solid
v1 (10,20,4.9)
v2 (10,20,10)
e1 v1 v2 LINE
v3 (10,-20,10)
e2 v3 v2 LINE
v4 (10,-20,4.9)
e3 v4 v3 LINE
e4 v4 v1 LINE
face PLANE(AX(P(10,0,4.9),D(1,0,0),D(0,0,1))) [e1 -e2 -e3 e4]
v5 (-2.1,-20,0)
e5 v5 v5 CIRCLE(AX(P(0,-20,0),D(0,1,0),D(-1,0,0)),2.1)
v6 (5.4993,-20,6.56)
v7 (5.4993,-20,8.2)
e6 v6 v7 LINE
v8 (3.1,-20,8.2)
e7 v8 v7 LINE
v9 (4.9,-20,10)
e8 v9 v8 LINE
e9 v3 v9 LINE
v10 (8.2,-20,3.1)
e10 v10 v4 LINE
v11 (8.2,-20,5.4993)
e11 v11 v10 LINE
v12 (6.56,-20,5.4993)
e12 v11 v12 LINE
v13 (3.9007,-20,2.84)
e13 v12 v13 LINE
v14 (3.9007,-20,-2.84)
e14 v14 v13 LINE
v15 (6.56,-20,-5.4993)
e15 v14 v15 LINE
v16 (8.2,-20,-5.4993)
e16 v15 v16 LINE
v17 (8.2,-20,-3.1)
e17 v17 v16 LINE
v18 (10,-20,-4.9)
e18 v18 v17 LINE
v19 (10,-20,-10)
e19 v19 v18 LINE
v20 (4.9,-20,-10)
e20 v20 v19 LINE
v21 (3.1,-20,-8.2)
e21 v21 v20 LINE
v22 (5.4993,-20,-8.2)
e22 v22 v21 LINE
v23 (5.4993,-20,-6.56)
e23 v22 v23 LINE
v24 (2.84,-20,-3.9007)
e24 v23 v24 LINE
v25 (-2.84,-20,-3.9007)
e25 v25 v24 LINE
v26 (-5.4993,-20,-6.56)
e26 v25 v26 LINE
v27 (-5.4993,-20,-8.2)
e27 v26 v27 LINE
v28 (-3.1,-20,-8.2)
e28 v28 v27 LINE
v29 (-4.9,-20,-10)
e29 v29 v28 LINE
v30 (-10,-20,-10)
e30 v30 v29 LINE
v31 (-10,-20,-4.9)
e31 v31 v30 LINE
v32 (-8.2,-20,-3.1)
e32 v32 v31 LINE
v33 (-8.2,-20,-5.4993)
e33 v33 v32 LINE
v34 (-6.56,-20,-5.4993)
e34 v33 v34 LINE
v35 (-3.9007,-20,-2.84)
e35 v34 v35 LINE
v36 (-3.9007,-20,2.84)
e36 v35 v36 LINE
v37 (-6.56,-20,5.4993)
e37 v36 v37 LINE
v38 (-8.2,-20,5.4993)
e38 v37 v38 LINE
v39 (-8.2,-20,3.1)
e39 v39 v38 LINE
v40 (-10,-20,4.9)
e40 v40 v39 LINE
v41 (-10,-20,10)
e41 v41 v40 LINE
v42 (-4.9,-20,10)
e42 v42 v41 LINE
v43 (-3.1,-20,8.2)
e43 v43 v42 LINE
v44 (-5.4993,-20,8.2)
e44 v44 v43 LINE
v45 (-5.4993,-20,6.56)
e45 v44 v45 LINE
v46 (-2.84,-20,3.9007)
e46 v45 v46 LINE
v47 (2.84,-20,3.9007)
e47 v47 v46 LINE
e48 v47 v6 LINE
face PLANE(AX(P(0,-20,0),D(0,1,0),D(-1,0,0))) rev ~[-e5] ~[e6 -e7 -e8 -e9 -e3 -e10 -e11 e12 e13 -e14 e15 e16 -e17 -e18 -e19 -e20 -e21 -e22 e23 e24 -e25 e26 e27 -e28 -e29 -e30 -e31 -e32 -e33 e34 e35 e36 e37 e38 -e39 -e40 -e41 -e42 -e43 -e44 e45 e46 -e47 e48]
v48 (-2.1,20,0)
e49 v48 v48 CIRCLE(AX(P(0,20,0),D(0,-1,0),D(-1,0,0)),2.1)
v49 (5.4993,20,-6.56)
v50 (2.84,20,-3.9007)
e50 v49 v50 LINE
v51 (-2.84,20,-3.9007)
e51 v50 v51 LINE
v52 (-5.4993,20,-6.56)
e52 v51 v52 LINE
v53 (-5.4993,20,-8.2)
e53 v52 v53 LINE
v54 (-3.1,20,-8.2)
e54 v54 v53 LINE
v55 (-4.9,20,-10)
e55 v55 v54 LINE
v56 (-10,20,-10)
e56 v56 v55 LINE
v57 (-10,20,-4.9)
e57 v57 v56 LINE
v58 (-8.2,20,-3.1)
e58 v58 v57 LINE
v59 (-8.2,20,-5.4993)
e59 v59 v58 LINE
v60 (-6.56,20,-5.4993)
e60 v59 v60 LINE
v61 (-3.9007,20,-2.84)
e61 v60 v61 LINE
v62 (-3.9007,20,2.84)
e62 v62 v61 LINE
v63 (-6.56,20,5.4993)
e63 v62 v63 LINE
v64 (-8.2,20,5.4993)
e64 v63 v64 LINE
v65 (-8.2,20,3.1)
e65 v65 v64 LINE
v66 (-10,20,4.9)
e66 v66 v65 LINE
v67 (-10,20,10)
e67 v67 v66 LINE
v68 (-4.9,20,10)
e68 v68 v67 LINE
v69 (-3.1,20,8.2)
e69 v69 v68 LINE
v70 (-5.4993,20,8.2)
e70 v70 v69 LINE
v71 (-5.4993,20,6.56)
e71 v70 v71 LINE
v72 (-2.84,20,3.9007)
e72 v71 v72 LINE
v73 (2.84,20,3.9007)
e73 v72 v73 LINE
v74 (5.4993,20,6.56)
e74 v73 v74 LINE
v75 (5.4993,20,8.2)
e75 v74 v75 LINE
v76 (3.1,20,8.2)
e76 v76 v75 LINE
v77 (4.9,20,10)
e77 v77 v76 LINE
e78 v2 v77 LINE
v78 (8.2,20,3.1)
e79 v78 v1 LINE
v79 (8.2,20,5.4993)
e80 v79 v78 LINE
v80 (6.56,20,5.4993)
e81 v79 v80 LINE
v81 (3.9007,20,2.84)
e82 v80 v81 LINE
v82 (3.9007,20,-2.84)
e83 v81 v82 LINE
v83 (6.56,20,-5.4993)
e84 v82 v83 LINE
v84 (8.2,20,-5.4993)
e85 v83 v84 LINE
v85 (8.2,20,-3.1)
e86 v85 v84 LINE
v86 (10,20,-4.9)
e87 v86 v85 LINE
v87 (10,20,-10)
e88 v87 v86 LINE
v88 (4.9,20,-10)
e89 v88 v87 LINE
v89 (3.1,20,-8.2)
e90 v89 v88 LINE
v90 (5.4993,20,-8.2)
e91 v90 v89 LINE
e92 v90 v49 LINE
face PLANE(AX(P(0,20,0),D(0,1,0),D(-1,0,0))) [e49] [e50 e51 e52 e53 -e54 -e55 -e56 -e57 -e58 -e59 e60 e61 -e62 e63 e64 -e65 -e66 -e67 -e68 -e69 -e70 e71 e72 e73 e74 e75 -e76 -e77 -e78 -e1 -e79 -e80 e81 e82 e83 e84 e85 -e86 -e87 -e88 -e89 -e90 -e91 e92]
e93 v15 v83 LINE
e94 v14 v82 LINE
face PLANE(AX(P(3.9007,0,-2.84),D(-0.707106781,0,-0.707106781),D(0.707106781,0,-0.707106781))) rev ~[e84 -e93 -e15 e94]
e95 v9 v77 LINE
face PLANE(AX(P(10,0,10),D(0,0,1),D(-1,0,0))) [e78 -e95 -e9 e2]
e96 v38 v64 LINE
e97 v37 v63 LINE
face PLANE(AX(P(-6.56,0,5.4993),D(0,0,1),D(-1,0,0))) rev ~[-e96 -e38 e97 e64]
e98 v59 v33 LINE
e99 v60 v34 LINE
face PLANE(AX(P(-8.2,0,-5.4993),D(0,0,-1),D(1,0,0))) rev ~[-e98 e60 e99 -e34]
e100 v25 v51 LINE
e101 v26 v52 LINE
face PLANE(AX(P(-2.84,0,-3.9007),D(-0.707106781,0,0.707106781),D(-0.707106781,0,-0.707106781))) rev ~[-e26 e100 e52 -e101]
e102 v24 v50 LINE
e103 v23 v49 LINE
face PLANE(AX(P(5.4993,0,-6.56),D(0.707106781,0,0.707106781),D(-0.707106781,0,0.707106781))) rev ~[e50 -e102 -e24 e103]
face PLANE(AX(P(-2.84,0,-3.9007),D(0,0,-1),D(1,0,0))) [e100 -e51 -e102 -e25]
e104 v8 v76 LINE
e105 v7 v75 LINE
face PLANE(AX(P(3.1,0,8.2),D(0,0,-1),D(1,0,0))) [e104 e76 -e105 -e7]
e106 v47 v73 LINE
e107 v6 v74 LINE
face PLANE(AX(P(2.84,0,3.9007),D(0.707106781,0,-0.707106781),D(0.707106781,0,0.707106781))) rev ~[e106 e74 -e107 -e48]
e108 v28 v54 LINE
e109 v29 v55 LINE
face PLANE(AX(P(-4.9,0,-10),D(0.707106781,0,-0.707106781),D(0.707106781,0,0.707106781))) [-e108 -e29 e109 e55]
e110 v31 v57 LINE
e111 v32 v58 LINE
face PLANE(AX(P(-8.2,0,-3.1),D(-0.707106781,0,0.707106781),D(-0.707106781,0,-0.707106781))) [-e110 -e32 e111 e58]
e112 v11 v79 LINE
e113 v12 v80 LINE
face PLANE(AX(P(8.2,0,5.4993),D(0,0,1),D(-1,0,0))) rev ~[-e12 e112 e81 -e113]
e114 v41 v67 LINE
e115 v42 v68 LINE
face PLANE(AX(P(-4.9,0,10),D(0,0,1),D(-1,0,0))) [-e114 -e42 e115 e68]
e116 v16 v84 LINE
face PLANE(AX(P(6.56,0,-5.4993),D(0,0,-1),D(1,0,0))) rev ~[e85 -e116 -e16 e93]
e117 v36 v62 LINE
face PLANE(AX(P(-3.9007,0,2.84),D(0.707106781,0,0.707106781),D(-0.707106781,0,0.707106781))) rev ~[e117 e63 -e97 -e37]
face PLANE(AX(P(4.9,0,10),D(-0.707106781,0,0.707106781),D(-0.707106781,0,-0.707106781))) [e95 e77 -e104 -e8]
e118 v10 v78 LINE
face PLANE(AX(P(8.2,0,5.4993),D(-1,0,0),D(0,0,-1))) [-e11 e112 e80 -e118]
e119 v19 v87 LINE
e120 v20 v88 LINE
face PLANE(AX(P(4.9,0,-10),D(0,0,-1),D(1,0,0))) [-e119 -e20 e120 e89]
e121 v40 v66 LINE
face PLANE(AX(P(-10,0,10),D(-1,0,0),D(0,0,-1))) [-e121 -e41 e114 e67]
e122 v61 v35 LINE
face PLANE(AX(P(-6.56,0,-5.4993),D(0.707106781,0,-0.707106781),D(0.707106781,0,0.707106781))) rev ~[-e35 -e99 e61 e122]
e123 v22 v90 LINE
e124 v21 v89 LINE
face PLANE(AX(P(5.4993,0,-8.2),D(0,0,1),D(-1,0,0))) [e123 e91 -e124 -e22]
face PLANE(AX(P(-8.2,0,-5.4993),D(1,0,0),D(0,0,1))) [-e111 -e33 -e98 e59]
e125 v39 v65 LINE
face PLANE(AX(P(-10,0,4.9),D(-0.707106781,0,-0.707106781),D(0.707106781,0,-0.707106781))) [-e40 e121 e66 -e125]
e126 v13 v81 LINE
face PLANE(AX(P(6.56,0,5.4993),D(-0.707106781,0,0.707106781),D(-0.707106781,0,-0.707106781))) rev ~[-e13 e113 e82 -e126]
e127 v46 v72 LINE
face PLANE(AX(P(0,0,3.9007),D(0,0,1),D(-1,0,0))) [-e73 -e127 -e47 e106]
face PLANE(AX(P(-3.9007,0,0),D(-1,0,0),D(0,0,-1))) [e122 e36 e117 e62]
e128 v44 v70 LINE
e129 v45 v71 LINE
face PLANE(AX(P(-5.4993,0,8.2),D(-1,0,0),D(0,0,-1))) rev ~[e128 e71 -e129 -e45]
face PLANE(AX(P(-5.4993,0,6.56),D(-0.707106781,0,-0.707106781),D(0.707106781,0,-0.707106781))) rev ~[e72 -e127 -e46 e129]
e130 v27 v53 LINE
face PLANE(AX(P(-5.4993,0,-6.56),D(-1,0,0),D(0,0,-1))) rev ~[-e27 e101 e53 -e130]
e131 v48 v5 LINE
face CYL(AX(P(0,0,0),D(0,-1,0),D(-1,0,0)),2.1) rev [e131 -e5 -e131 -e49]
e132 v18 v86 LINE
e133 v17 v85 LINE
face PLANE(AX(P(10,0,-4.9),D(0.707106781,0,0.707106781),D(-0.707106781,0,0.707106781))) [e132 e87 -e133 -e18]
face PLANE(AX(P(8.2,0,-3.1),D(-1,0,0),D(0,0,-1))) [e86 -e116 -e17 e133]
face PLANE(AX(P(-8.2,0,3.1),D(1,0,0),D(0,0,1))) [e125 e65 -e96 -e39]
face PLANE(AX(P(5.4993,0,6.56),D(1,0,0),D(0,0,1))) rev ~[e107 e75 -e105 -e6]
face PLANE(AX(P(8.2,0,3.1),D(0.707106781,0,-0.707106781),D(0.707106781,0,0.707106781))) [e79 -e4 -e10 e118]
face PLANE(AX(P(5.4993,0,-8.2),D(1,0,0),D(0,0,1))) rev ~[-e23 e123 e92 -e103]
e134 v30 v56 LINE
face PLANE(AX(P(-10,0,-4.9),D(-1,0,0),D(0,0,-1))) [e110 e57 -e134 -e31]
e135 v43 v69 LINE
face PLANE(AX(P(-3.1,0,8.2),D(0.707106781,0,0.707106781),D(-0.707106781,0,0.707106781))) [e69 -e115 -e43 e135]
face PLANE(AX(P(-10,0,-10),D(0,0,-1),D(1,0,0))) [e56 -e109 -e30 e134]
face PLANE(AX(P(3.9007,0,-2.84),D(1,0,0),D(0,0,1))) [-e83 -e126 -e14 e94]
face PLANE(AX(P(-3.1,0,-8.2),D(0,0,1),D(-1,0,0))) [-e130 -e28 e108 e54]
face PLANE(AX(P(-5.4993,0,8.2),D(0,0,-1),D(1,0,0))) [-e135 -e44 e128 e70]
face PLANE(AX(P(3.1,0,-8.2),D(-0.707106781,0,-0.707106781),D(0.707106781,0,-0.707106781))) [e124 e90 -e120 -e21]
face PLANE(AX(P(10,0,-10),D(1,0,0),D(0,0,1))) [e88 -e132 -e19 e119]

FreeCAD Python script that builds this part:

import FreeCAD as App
import Part
import Sketcher
Q = App.Units.Quantity

doc = App.newDocument("Part")
body = doc.addObject("PartDesign::Body", "Body")

# Sketch on XZ plane
sketch1 = body.newObject("Sketcher::SketchObject", "Sketch")
sketch1.AttachmentSupport = (doc.getObject("XZ_Plane"), [""])
sketch1.MapMode = "FlatFace"
sketch1.addGeometry([
    Part.LineSegment(App.Vector(-3.9007, -2.84, 0), App.Vector(-3.9007, 2.84, 0)),  # 0
    Part.LineSegment(App.Vector(-3.9007, 2.84, 0), App.Vector(-6.56, 5.4993, 0)),  # 1
    Part.LineSegment(App.Vector(-6.56, 5.4993, 0), App.Vector(-8.2, 5.4993, 0)),  # 2
    Part.LineSegment(App.Vector(-8.2, 5.4993, 0), App.Vector(-8.2, 3.1, 0)),  # 3
    Part.LineSegment(App.Vector(-8.2, 3.1, 0), App.Vector(-10, 4.9, 0)),  # 4
    Part.LineSegment(App.Vector(-10, 4.9, 0), App.Vector(-10, 10, 0)),  # 5
    Part.LineSegment(App.Vector(-10, 10, 0), App.Vector(-4.9, 10, 0)),  # 6
    Part.LineSegment(App.Vector(-4.9, 10, 0), App.Vector(-3.1, 8.2, 0)),  # 7
    Part.LineSegment(App.Vector(-3.1, 8.2, 0), App.Vector(-5.4993, 8.2, 0)),  # 8
    Part.LineSegment(App.Vector(-5.4993, 8.2, 0), App.Vector(-5.4993, 6.56, 0)),  # 9
    Part.LineSegment(App.Vector(-5.4993, 6.56, 0), App.Vector(-2.84, 3.9007, 0)),  # 10
    Part.LineSegment(App.Vector(-2.84, 3.9007, 0), App.Vector(2.84, 3.9007, 0)),  # 11
    Part.LineSegment(App.Vector(2.84, 3.9007, 0), App.Vector(5.4993, 6.56, 0)),  # 12
    Part.LineSegment(App.Vector(5.4993, 6.56, 0), App.Vector(5.4993, 8.2, 0)),  # 13
    Part.LineSegment(App.Vector(5.4993, 8.2, 0), App.Vector(3.1, 8.2, 0)),  # 14
    Part.LineSegment(App.Vector(3.1, 8.2, 0), App.Vector(4.9, 10, 0)),  # 15
    Part.LineSegment(App.Vector(4.9, 10, 0), App.Vector(10, 10, 0)),  # 16
    Part.LineSegment(App.Vector(10, 10, 0), App.Vector(10, 4.9, 0)),  # 17
    Part.LineSegment(App.Vector(10, 4.9, 0), App.Vector(8.2, 3.1, 0)),  # 18
    Part.LineSegment(App.Vector(8.2, 3.1, 0), App.Vector(8.2, 5.4993, 0)),  # 19
    Part.LineSegment(App.Vector(8.2, 5.4993, 0), App.Vector(6.56, 5.4993, 0)),  # 20
    Part.LineSegment(App.Vector(6.56, 5.4993, 0), App.Vector(3.9007, 2.84, 0)),  # 21
    Part.LineSegment(App.Vector(3.9007, 2.84, 0), App.Vector(3.9007, -2.84, 0)),  # 22
    Part.LineSegment(App.Vector(3.9007, -2.84, 0), App.Vector(6.56, -5.4993, 0)),  # 23
    Part.LineSegment(App.Vector(6.56, -5.4993, 0), App.Vector(8.2, -5.4993, 0)),  # 24
    Part.LineSegment(App.Vector(8.2, -5.4993, 0), App.Vector(8.2, -3.1, 0)),  # 25
    Part.LineSegment(App.Vector(8.2, -3.1, 0), App.Vector(10, -4.9, 0)),  # 26
    Part.LineSegment(App.Vector(10, -4.9, 0), App.Vector(10, -10, 0)),  # 27
    Part.LineSegment(App.Vector(10, -10, 0), App.Vector(4.9, -10, 0)),  # 28
    Part.LineSegment(App.Vector(4.9, -10, 0), App.Vector(3.1, -8.2, 0)),  # 29
    Part.LineSegment(App.Vector(3.1, -8.2, 0), App.Vector(5.4993, -8.2, 0)),  # 30
    Part.LineSegment(App.Vector(5.4993, -8.2, 0), App.Vector(5.4993, -6.56, 0)),  # 31
    Part.LineSegment(App.Vector(5.4993, -6.56, 0), App.Vector(2.84, -3.9007, 0)),  # 32
    Part.LineSegment(App.Vector(2.84, -3.9007, 0), App.Vector(-2.84, -3.9007, 0)),  # 33
    Part.LineSegment(App.Vector(-2.84, -3.9007, 0), App.Vector(-5.4993, -6.56, 0)),  # 34
    Part.LineSegment(App.Vector(-5.4993, -6.56, 0), App.Vector(-5.4993, -8.2, 0)),  # 35
    Part.LineSegment(App.Vector(-5.4993, -8.2, 0), App.Vector(-3.1, -8.2, 0)),  # 36
    Part.LineSegment(App.Vector(-3.1, -8.2, 0), App.Vector(-4.9, -10, 0)),  # 37
    Part.LineSegment(App.Vector(-4.9, -10, 0), App.Vector(-10, -10, 0)),  # 38
    Part.LineSegment(App.Vector(-10, -10, 0), App.Vector(-10, -4.9, 0)),  # 39
    Part.LineSegment(App.Vector(-10, -4.9, 0), App.Vector(-8.2, -3.1, 0)),  # 40
    Part.LineSegment(App.Vector(-8.2, -3.1, 0), App.Vector(-8.2, -5.4993, 0)),  # 41
    Part.LineSegment(App.Vector(-8.2, -5.4993, 0), App.Vector(-6.56, -5.4993, 0)),  # 42
    Part.LineSegment(App.Vector(-6.56, -5.4993, 0), App.Vector(-3.9007, -2.84, 0)),  # 43
    Part.Circle(App.Vector(0, 0, 0), App.Vector(0, 0, 1), 2.1),  # 44
], False)
sketch1.addConstraint([
    Sketcher.Constraint("Coincident", 0, 2, 1, 1),
    Sketcher.Constraint("Coincident", 1, 2, 2, 1),
    Sketcher.Constraint("Coincident", 2, 2, 3, 1),
    Sketcher.Constraint("Coincident", 3, 2, 4, 1),
    Sketcher.Constraint("Coincident", 4, 2, 5, 1),
    Sketcher.Constraint("Coincident", 5, 2, 6, 1),
    Sketcher.Constraint("Coincident", 6, 2, 7, 1),
    Sketcher.Constraint("Coincident", 7, 2, 8, 1),
    Sketcher.Constraint("Coincident", 8, 2, 9, 1),
    Sketcher.Constraint("Coincident", 9, 2, 10, 1),
    Sketcher.Constraint("Coincident", 10, 2, 11, 1),
    Sketcher.Constraint("Coincident", 11, 2, 12, 1),
    Sketcher.Constraint("Coincident", 12, 2, 13, 1),
    Sketcher.Constraint("Coincident", 13, 2, 14, 1),
    Sketcher.Constraint("Coincident", 14, 2, 15, 1),
    Sketcher.Constraint("Coincident", 15, 2, 16, 1),
    Sketcher.Constraint("Coincident", 16, 2, 17, 1),
    Sketcher.Constraint("Coincident", 17, 2, 18, 1),
    Sketcher.Constraint("Coincident", 18, 2, 19, 1),
    Sketcher.Constraint("Coincident", 19, 2, 20, 1),
    Sketcher.Constraint("Coincident", 20, 2, 21, 1),
    Sketcher.Constraint("Coincident", 21, 2, 22, 1),
    Sketcher.Constraint("Coincident", 22, 2, 23, 1),
    Sketcher.Constraint("Coincident", 23, 2, 24, 1),
    Sketcher.Constraint("Coincident", 24, 2, 25, 1),
    Sketcher.Constraint("Coincident", 25, 2, 26, 1),
    Sketcher.Constraint("Coincident", 26, 2, 27, 1),
    Sketcher.Constraint("Coincident", 27, 2, 28, 1),
    Sketcher.Constraint("Coincident", 28, 2, 29, 1),
    Sketcher.Constraint("Coincident", 29, 2, 30, 1),
    Sketcher.Constraint("Coincident", 30, 2, 31, 1),
    Sketcher.Constraint("Coincident", 31, 2, 32, 1),
    Sketcher.Constraint("Coincident", 32, 2, 33, 1),
    Sketcher.Constraint("Coincident", 33, 2, 34, 1),
    Sketcher.Constraint("Coincident", 34, 2, 35, 1),
    Sketcher.Constraint("Coincident", 35, 2, 36, 1),
    Sketcher.Constraint("Coincident", 36, 2, 37, 1),
    Sketcher.Constraint("Coincident", 37, 2, 38, 1),
    Sketcher.Constraint("Coincident", 38, 2, 39, 1),
    Sketcher.Constraint("Coincident", 39, 2, 40, 1),
    Sketcher.Constraint("Coincident", 40, 2, 41, 1),
    Sketcher.Constraint("Coincident", 41, 2, 42, 1),
    Sketcher.Constraint("Coincident", 42, 2, 43, 1),
    Sketcher.Constraint("Coincident", 43, 2, 0, 1),
    Sketcher.Constraint("Vertical", 0),
    Sketcher.Constraint("Horizontal", 2),
    Sketcher.Constraint("Vertical", 3),
    Sketcher.Constraint("Vertical", 5),
    Sketcher.Constraint("Horizontal", 6),
    Sketcher.Constraint("Horizontal", 8),
    Sketcher.Constraint("Vertical", 9),
    Sketcher.Constraint("Horizontal", 11),
    Sketcher.Constraint("Vertical", 13),
    Sketcher.Constraint("Horizontal", 14),
    Sketcher.Constraint("Horizontal", 16),
    Sketcher.Constraint("Vertical", 17),
    Sketcher.Constraint("Vertical", 19),
    Sketcher.Constraint("Horizontal", 20),
    Sketcher.Constraint("Vertical", 22),
    Sketcher.Constraint("Horizontal", 24),
    Sketcher.Constraint("Vertical", 25),
    Sketcher.Constraint("Vertical", 27),
    Sketcher.Constraint("Horizontal", 28),
    Sketcher.Constraint("Horizontal", 30),
    Sketcher.Constraint("Vertical", 31),
    Sketcher.Constraint("Horizontal", 33),
    Sketcher.Constraint("Vertical", 35),
    Sketcher.Constraint("Horizontal", 36),
    Sketcher.Constraint("Horizontal", 38),
    Sketcher.Constraint("Vertical", 39),
    Sketcher.Constraint("Vertical", 41),
    Sketcher.Constraint("Horizontal", 42),
    Sketcher.Constraint("Coincident", 44, 3, -1, 1),
    Sketcher.Constraint("Symmetric", 0, 2, 22, 2, -1, 1),
    Sketcher.Constraint("Symmetric", 1, 2, 23, 2, -1, 1),
    Sketcher.Constraint("Symmetric", 3, 2, 25, 2, -1, 1),
    Sketcher.Constraint("Symmetric", 4, 2, 26, 2, -1, 1),
    Sketcher.Constraint("Symmetric", 6, 2, 28, 2, -1, 1),
    Sketcher.Constraint("Symmetric", 7, 2, 29, 2, -1, 1),
    Sketcher.Constraint("Symmetric", 9, 2, 31, 2, -1, 1),
    Sketcher.Constraint("Symmetric", 10, 2, 32, 2, -1, 1),
    Sketcher.Constraint("Symmetric", 12, 2, 34, 2, -1, 1),
    Sketcher.Constraint("Symmetric", 14, 2, 36, 2, -1, 1),
    Sketcher.Constraint("Symmetric", 15, 2, 37, 2, -1, 1),
    Sketcher.Constraint("Symmetric", 17, 2, 39, 2, -1, 1),
    Sketcher.Constraint("Symmetric", 18, 2, 40, 2, -1, 1),
    Sketcher.Constraint("Symmetric", 20, 2, 42, 2, -1, 1),
    Sketcher.Constraint("Symmetric", 9, 2, 12, 2, -2),
    Sketcher.Constraint("Symmetric", 7, 2, 14, 2, -2),
    Sketcher.Constraint("Symmetric", 6, 2, 15, 2, -2),
    Sketcher.Constraint("Symmetric", 4, 2, 17, 2, -2),
    Sketcher.Constraint("Symmetric", 3, 2, 18, 2, -2),
    Sketcher.Constraint("Symmetric", 1, 2, 20, 2, -2),
    Sketcher.Constraint("Parallel", 1, 4),
    Sketcher.Constraint("Parallel", 4, 7),
    Sketcher.Constraint("Parallel", 7, 10),
    Sketcher.Constraint("Perpendicular", 10, 12),
    Sketcher.Constraint("Parallel", 12, 15),
    Sketcher.Constraint("Parallel", 18, 21),
    Sketcher.Constraint("Perpendicular", 32, 34),
    Sketcher.Constraint("Parallel", 40, 43),
    Sketcher.Constraint("Equal", 33, 0),
    Sketcher.Constraint("Equal", 36, 3),
    Sketcher.Constraint("Equal", 38, 5),
    Sketcher.Constraint("Equal", 42, 9),
    Sketcher.Constraint("Equal", 4, 7),
    Sketcher.Constraint("Equal", 1, 10),
    Sketcher.Constraint("Diameter", 44, Q("4.2 mm")),
    Sketcher.Constraint("DistanceX", 4, 2, -1, 1, Q("10 mm")),
    Sketcher.Constraint("DistanceX", 2, 2, 2, 1, Q("1.64 mm")),
    Sketcher.Constraint("DistanceY", -1, 1, 3, 2, Q("3.1 mm")),
    Sketcher.Constraint("DistanceX", 4, 2, 2, 2, Q("1.8 mm")),
    Sketcher.Constraint("DistanceY", -1, 1, 0, 2, Q("2.84 mm")),
    Sketcher.Constraint("DistanceX", 8, 2, 8, 1, Q("2.3993 mm")),
])
pad1 = body.newObject("PartDesign::Pad", "Pad")
pad1.Profile = sketch1
pad1.Length = 40
pad1.Midplane = True

doc.recompute()
